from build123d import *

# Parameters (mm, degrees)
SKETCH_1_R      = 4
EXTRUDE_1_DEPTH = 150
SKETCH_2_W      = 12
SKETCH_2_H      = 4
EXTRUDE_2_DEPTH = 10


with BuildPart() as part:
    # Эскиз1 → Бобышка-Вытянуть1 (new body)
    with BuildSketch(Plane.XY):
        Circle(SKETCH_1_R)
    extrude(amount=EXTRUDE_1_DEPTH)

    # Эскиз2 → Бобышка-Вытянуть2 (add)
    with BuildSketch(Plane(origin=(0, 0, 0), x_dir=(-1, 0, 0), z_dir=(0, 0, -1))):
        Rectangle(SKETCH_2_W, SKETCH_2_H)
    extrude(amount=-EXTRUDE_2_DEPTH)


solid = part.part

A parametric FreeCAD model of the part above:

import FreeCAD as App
import Part
import Sketcher

V = App.Vector


def add_polygon(sketch, points):
    """Adds a closed chain of lines whose ends are joined by coincident constraints."""
    first, n = sketch.GeometryCount, len(points)
    for a, b in zip(points, points[1:] + points[:1]):
        sketch.addGeometry(Part.LineSegment(App.Vector(*a, 0), App.Vector(*b, 0)), False)
    for i in range(n):
        sketch.addConstraint(Sketcher.Constraint("Coincident", first + i, 2, first + (i + 1) % n, 1))

doc = App.newDocument("Part")
body = doc.addObject("PartDesign::Body", "Body")

# Sketch on XY plane
sketch1 = doc.addObject("Sketcher::SketchObject", "Sketch")
body.addObject(sketch1)
sketch1.AttachmentSupport = (doc.XY_Plane, [""])
sketch1.MapMode = "FlatFace"
sketch1.addGeometry(Part.Circle(V(0, 0, 0), V(0, 0, 1), 4), False)
sketch1.addConstraint([
    Sketcher.Constraint("Coincident", 0, 3, -1, 1),
    Sketcher.Constraint("Diameter", 0, 8.0),
])
pad1 = doc.addObject("PartDesign::Pad", "Pad")
body.addObject(pad1)
pad1.Profile = sketch1
pad1.Length = 150

# Sketch on XY plane
sketch2 = doc.addObject("Sketcher::SketchObject", "Sketch001")
body.addObject(sketch2)
sketch2.AttachmentSupport = (doc.XY_Plane, [""])
sketch2.MapMode = "FlatFace"
add_polygon(sketch2, [(6, 2), (6, -2), (-6, -2), (-6, 2)])  # lines 0-3
sketch2.addConstraint([
    Sketcher.Constraint("Vertical", 0),
    Sketcher.Constraint("Horizontal", 1),
    Sketcher.Constraint("Vertical", 2),
    Sketcher.Constraint("Horizontal", 3),
    Sketcher.Constraint("Symmetric", 0, 2, 2, 2, -1, 1),
    Sketcher.Constraint("DistanceX", 1, 2, 1, 1, 12.0),
    Sketcher.Constraint("DistanceY", 0, 2, 0, 1, 4.0),
])
pad2 = doc.addObject("PartDesign::Pad", "Pad001")
body.addObject(pad2)
pad2.Profile = sketch2
pad2.Length = 10

doc.recompute()
